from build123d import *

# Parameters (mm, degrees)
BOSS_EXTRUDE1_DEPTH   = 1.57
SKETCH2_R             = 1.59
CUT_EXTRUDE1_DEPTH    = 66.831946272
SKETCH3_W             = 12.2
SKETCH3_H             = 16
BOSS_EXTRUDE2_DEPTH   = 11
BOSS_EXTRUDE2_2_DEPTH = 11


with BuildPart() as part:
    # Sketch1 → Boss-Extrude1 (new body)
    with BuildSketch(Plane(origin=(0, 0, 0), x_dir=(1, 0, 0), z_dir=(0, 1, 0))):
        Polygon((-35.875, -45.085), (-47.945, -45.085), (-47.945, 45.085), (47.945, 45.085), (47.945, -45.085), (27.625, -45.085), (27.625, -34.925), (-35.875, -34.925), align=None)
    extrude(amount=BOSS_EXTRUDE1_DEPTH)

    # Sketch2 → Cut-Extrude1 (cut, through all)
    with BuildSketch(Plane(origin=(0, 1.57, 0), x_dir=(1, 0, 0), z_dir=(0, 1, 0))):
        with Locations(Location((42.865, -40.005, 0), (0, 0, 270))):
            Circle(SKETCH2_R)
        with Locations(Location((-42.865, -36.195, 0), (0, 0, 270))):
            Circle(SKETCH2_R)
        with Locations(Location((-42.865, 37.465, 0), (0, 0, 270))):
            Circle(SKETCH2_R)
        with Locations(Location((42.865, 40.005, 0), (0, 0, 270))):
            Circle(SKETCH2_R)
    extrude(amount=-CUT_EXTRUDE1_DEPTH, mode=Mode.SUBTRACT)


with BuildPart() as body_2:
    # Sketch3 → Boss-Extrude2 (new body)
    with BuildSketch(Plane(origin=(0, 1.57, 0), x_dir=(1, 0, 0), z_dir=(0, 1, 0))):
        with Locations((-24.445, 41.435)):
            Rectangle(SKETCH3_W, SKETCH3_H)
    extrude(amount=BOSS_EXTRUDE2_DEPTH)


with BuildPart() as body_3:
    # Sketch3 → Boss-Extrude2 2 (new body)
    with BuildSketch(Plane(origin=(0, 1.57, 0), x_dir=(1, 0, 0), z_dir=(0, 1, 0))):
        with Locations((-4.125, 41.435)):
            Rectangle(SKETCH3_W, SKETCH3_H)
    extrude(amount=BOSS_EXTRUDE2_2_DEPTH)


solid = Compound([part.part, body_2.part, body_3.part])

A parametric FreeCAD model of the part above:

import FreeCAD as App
import Part
import Sketcher
from FreeCAD import Vector
Q = App.Units.Quantity

doc = App.newDocument("Part")
body = doc.addObject("PartDesign::Body", "Body")

# Sketch on XZ plane
sketch1 = body.newObject("Sketcher::SketchObject", "Sketch")
sketch1.AttachmentSupport = (doc.getObject("XZ_Plane"), [""])
sketch1.MapMode = "FlatFace"
sketch1.addGeometry(Part.LineSegment(Vector(-48, 45, 0), Vector(-36, 45, 0)), False)
sketch1.addGeometry(Part.LineSegment(Vector(-36, 45, 0), Vector(-36, 35, 0)), False)
sketch1.addGeometry(Part.LineSegment(Vector(-36, 35, 0), Vector(28, 35, 0)), False)
sketch1.addGeometry(Part.LineSegment(Vector(28, 35, 0), Vector(28, 45, 0)), False)
sketch1.addGeometry(Part.LineSegment(Vector(28, 45, 0), Vector(48, 45, 0)), False)
sketch1.addGeometry(Part.LineSegment(Vector(48, 45, 0), Vector(48, -45, 0)), False)
sketch1.addGeometry(Part.LineSegment(Vector(48, -45, 0), Vector(-48, -45, 0)), False)
sketch1.addGeometry(Part.LineSegment(Vector(-48, -45, 0), Vector(-48, 45, 0)), False)
sketch1.addConstraint(Sketcher.Constraint("Coincident", 0, 2, 1, 1))
sketch1.addConstraint(Sketcher.Constraint("Coincident", 1, 2, 2, 1))
sketch1.addConstraint(Sketcher.Constraint("Coincident", 2, 2, 3, 1))
sketch1.addConstraint(Sketcher.Constraint("Coincident", 3, 2, 4, 1))
sketch1.addConstraint(Sketcher.Constraint("Coincident", 4, 2, 5, 1))
sketch1.addConstraint(Sketcher.Constraint("Coincident", 5, 2, 6, 1))
sketch1.addConstraint(Sketcher.Constraint("Coincident", 6, 2, 7, 1))
sketch1.addConstraint(Sketcher.Constraint("Coincident", 7, 2, 0, 1))
sketch1.addConstraint(Sketcher.Constraint("Horizontal", 0))
sketch1.addConstraint(Sketcher.Constraint("Vertical", 1))
sketch1.addConstraint(Sketcher.Constraint("Horizontal", 2))
sketch1.addConstraint(Sketcher.Constraint("Vertical", 3))
sketch1.addConstraint(Sketcher.Constraint("Horizontal", 4))
sketch1.addConstraint(Sketcher.Constraint("Vertical", 5))
sketch1.addConstraint(Sketcher.Constraint("Horizontal", 6))
sketch1.addConstraint(Sketcher.Constraint("Vertical", 7))
sketch1.addConstraint(Sketcher.Constraint("Symmetric", 4, 2, 6, 2, -1, 1))
sketch1.addConstraint(Sketcher.Constraint("Horizontal", 0, 2, 3, 2))
sketch1.addConstraint(Sketcher.Constraint("DistanceX", 2, 1, 2, 2, Q("2.5 in")))
sketch1.addConstraint(Sketcher.Constraint("DistanceX", 4, 1, 4, 2, Q("0.8 in")))
sketch1.addConstraint(Sketcher.Constraint("DistanceY", 1, 2, 1, 1, Q("0.4 in")))
sketch1.addConstraint(Sketcher.Constraint("DistanceY", 5, 2, 5, 1, Q("3.55 in")))
sketch1.addConstraint(Sketcher.Constraint("DistanceX", 0, 1, 0, 2, 12.07))
pad1 = body.newObject("PartDesign::Pad", "Pad")
pad1.Profile = sketch1
pad1.Length = 1.57
pad1.Reversed = True

# Sketch on XZ plane
sketch2 = body.newObject("Sketcher::SketchObject", "Sketch001")
sketch2.AttachmentSupport = (doc.getObject("XZ_Plane"), [""])
sketch2.MapMode = "FlatFace"
sketch2.AttachmentOffset = App.Placement(Vector(0, 0, -1.57), App.Rotation())
sketch2.addGeometry(Part.Circle(Vector(42.9, 40, 0), Vector(0, 0, 1), 1.6), False)
sketch2.addGeometry(Part.Circle(Vector(-42.9, 36.2, 0), Vector(0, 0, 1), 1.6), False)
sketch2.addGeometry(Part.Circle(Vector(-42.9, -37.5, 0), Vector(0, 0, 1), 1.6), False)
sketch2.addGeometry(Part.Circle(Vector(42.9, -40, 0), Vector(0, 0, 1), 1.6), False)
sketch2.addConstraint(Sketcher.Constraint("Equal", 0, 1))
sketch2.addConstraint(Sketcher.Constraint("Equal", 1, 2))
sketch2.addConstraint(Sketcher.Constraint("Equal", 2, 3))
sketch2.addConstraint(Sketcher.Constraint("Symmetric", 0, 3, 3, 3, -1))
sketch2.addConstraint(Sketcher.Constraint("Vertical", 1, 3, 2, 3))
sketch2.addConstraint(Sketcher.Constraint("DistanceY", 3, 3, 1, 3, Q("3 in")))
sketch2.addConstraint(Sketcher.Constraint("DistanceY", 2, 3, 1, 3, Q("2.9 in")))
sketch2.addConstraint(Sketcher.Constraint("Diameter", 0, 3.18))
sketch2.addConstraint(Sketcher.Constraint("DistanceY", 1, 3, 0, 3, Q("0.15 in")))
sketch2.addConstraint(Sketcher.Constraint("DistanceX", -1, 1, 0, 3, 42.865))
sketch2.addConstraint(Sketcher.Constraint("DistanceX", 1, 3, -1, 1, 42.865))
pocket1 = body.newObject("PartDesign::Pocket", "Pocket")
pocket1.Profile = sketch2
pocket1.Type = "ThroughAll"
pocket1.Reversed = True
body2 = doc.addObject("PartDesign::Body", "Body001")

# Sketch on XZ plane
sketch3 = body2.newObject("Sketcher::SketchObject", "Sketch002")
sketch3.AttachmentSupport = (doc.getObject("XZ_Plane001"), [""])
sketch3.MapMode = "FlatFace"
sketch3.AttachmentOffset = App.Placement(Vector(0, 0, -1.57), App.Rotation())
sketch3.addGeometry(Part.LineSegment(Vector(-31, -49, 0), Vector(-31, -33, 0)), False)
sketch3.addGeometry(Part.LineSegment(Vector(-31, -33, 0), Vector(-18, -33, 0)), False)
sketch3.addGeometry(Part.LineSegment(Vector(-18, -33, 0), Vector(-18, -49, 0)), False)
sketch3.addGeometry(Part.LineSegment(Vector(-18, -49, 0), Vector(-31, -49, 0)), False)
sketch3.addConstraint(Sketcher.Constraint("Coincident", 0, 2, 1, 1))
sketch3.addConstraint(Sketcher.Constraint("Coincident", 1, 2, 2, 1))
sketch3.addConstraint(Sketcher.Constraint("Coincident", 2, 2, 3, 1))
sketch3.addConstraint(Sketcher.Constraint("Coincident", 3, 2, 0, 1))
sketch3.addConstraint(Sketcher.Constraint("Vertical", 0))
sketch3.addConstraint(Sketcher.Constraint("Horizontal", 1))
sketch3.addConstraint(Sketcher.Constraint("Vertical", 2))
sketch3.addConstraint(Sketcher.Constraint("Horizontal", 3))
sketch3.addConstraint(Sketcher.Constraint("DistanceX", 1, 1, 1, 2, 12.2))
sketch3.addConstraint(Sketcher.Constraint("DistanceY", 0, 1, 0, 2, 16.0))
sketch3.addConstraint(Sketcher.Constraint("DistanceX", 0, 2, -1, 1, 30.545))
sketch3.addConstraint(Sketcher.Constraint("DistanceY", 0, 2, -1, 1, 33.435))
pad2 = body2.newObject("PartDesign::Pad", "Pad001")
pad2.Profile = sketch3
pad2.Length = 11
pad2.Reversed = True
body3 = doc.addObject("PartDesign::Body", "Body002")

# Sketch on XZ plane
sketch4 = body3.newObject("Sketcher::SketchObject", "Sketch003")
sketch4.AttachmentSupport = (doc.getObject("XZ_Plane002"), [""])
sketch4.MapMode = "FlatFace"
sketch4.AttachmentOffset = App.Placement(Vector(0, 0, -1.57), App.Rotation())
sketch4.addGeometry(Part.LineSegment(Vector(-10, -49, 0), Vector(-10, -33, 0)), False)
sketch4.addGeometry(Part.LineSegment(Vector(-10, -33, 0), Vector(2, -33, 0)), False)
sketch4.addGeometry(Part.LineSegment(Vector(2, -33, 0), Vector(2, -49, 0)), False)
sketch4.addGeometry(Part.LineSegment(Vector(2, -49, 0), Vector(-10, -49, 0)), False)
sketch4.addConstraint(Sketcher.Constraint("Coincident", 0, 2, 1, 1))
sketch4.addConstraint(Sketcher.Constraint("Coincident", 1, 2, 2, 1))
sketch4.addConstraint(Sketcher.Constraint("Coincident", 2, 2, 3, 1))
sketch4.addConstraint(Sketcher.Constraint("Coincident", 3, 2, 0, 1))
sketch4.addConstraint(Sketcher.Constraint("Vertical", 0))
sketch4.addConstraint(Sketcher.Constraint("Horizontal", 1))
sketch4.addConstraint(Sketcher.Constraint("Vertical", 2))
sketch4.addConstraint(Sketcher.Constraint("Horizontal", 3))
sketch4.addConstraint(Sketcher.Constraint("DistanceX", 1, 1, 1, 2, 12.2))
sketch4.addConstraint(Sketcher.Constraint("DistanceY", 0, 1, 0, 2, 16.0))
sketch4.addConstraint(Sketcher.Constraint("DistanceX", 0, 2, -1, 1, 10.225))
sketch4.addConstraint(Sketcher.Constraint("DistanceY", 0, 2, -1, 1, 33.435))
pad3 = body3.newObject("PartDesign::Pad", "Pad002")
pad3.Profile = sketch4
pad3.Length = 11
pad3.Reversed = True

doc.recompute()
